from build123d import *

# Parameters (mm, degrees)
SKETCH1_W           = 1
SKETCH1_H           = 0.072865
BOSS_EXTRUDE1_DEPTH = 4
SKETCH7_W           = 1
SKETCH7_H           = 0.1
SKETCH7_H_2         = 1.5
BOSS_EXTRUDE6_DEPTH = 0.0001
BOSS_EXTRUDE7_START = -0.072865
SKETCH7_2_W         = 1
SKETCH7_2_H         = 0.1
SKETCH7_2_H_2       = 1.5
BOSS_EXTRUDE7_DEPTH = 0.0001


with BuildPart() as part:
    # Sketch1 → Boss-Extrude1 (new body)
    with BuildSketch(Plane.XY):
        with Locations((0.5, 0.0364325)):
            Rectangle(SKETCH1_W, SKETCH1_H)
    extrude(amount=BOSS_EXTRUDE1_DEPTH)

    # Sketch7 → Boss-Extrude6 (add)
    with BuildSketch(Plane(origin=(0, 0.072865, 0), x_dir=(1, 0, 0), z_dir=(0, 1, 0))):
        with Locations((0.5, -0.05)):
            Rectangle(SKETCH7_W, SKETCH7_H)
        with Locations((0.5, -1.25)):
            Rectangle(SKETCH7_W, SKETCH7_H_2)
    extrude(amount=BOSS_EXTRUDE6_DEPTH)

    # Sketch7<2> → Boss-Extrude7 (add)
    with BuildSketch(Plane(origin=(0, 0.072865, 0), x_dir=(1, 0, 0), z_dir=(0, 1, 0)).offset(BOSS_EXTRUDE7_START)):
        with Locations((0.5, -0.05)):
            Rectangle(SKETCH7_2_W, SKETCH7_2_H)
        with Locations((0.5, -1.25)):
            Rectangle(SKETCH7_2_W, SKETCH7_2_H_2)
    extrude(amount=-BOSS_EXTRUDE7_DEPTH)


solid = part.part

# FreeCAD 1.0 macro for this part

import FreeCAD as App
import Part
import Sketcher
from FreeCAD import Vector
Q = App.Units.Quantity

doc = App.newDocument("Part")
body = doc.addObject("PartDesign::Body", "Body")

# Sketch on XY plane
sketch1 = body.newObject("Sketcher::SketchObject", "Sketch")
sketch1.AttachmentSupport = (doc.getObject("XY_Plane"), [""])
sketch1.MapMode = "FlatFace"
sketch1.addGeometry(Part.LineSegment(Vector(0, 0.07, 0), Vector(0, 0, 0)), False)
sketch1.addGeometry(Part.LineSegment(Vector(0, 0, 0), Vector(1, 0, 0)), False)
sketch1.addGeometry(Part.LineSegment(Vector(1, 0, 0), Vector(1, 0.07, 0)), False)
sketch1.addGeometry(Part.LineSegment(Vector(1, 0.07, 0), Vector(0, 0.07, 0)), False)
sketch1.addConstraint(Sketcher.Constraint("Coincident", 0, 2, 1, 1))
sketch1.addConstraint(Sketcher.Constraint("Coincident", 1, 2, 2, 1))
sketch1.addConstraint(Sketcher.Constraint("Coincident", 2, 2, 3, 1))
sketch1.addConstraint(Sketcher.Constraint("Coincident", 3, 2, 0, 1))
sketch1.addConstraint(Sketcher.Constraint("Vertical", 0))
sketch1.addConstraint(Sketcher.Constraint("Horizontal", 1))
sketch1.addConstraint(Sketcher.Constraint("Vertical", 2))
sketch1.addConstraint(Sketcher.Constraint("Horizontal", 3))
sketch1.addConstraint(Sketcher.Constraint("Coincident", 0, 2, -1, 1))
sketch1.addConstraint(Sketcher.Constraint("DistanceX", 1, 1, 1, 2, Q("1 mm")))
sketch1.addConstraint(Sketcher.Constraint("DistanceY", 0, 2, 0, 1, Q("0.072865 mm")))
pad1 = body.newObject("PartDesign::Pad", "Pad")
pad1.Profile = sketch1
pad1.Length = 4

# Sketch on XZ plane
sketch2 = body.newObject("Sketcher::SketchObject", "Sketch001")
sketch2.AttachmentSupport = (doc.getObject("XZ_Plane"), [""])
sketch2.MapMode = "FlatFace"
sketch2.AttachmentOffset = App.Placement(Vector(0, 0, -0.072865), App.Rotation())
sketch2.addGeometry(Part.LineSegment(Vector(0, 0, 0), Vector(0, 0.1, 0)), False)
sketch2.addGeometry(Part.LineSegment(Vector(0, 0.1, 0), Vector(1, 0.1, 0)), False)
sketch2.addGeometry(Part.LineSegment(Vector(1, 0.1, 0), Vector(1, 0, 0)), False)
sketch2.addGeometry(Part.LineSegment(Vector(1, 0, 0), Vector(0, 0, 0)), False)
sketch2.addGeometry(Part.LineSegment(Vector(0, 0.5, 0), Vector(0, 2, 0)), False)
sketch2.addGeometry(Part.LineSegment(Vector(0, 2, 0), Vector(1, 2, 0)), False)
sketch2.addGeometry(Part.LineSegment(Vector(1, 2, 0), Vector(1, 0.5, 0)), False)
sketch2.addGeometry(Part.LineSegment(Vector(1, 0.5, 0), Vector(0, 0.5, 0)), False)
sketch2.addConstraint(Sketcher.Constraint("Coincident", 0, 2, 1, 1))
sketch2.addConstraint(Sketcher.Constraint("Coincident", 1, 2, 2, 1))
sketch2.addConstraint(Sketcher.Constraint("Coincident", 2, 2, 3, 1))
sketch2.addConstraint(Sketcher.Constraint("Coincident", 3, 2, 0, 1))
sketch2.addConstraint(Sketcher.Constraint("Coincident", 4, 2, 5, 1))
sketch2.addConstraint(Sketcher.Constraint("Coincident", 5, 2, 6, 1))
sketch2.addConstraint(Sketcher.Constraint("Coincident", 6, 2, 7, 1))
sketch2.addConstraint(Sketcher.Constraint("Coincident", 7, 2, 4, 1))
sketch2.addConstraint(Sketcher.Constraint("Vertical", 0))
sketch2.addConstraint(Sketcher.Constraint("Horizontal", 1))
sketch2.addConstraint(Sketcher.Constraint("Vertical", 2))
sketch2.addConstraint(Sketcher.Constraint("Horizontal", 3))
sketch2.addConstraint(Sketcher.Constraint("Vertical", 4))
sketch2.addConstraint(Sketcher.Constraint("Horizontal", 5))
sketch2.addConstraint(Sketcher.Constraint("Vertical", 6))
sketch2.addConstraint(Sketcher.Constraint("Horizontal", 7))
sketch2.addConstraint(Sketcher.Constraint("Coincident", 3, 2, -1, 1))
sketch2.addConstraint(Sketcher.Constraint("PointOnObject", 4, 2, -2))
sketch2.addConstraint(Sketcher.Constraint("Vertical", 2, 2, 5, 2))
sketch2.addConstraint(Sketcher.Constraint("DistanceX", 1, 1, 1, 2, Q("1 mm")))
sketch2.addConstraint(Sketcher.Constraint("DistanceY", 0, 1, 0, 2, Q("0.1 mm")))
sketch2.addConstraint(Sketcher.Constraint("DistanceY", 4, 1, 4, 2, Q("1.5 mm")))
sketch2.addConstraint(Sketcher.Constraint("DistanceY", -1, 1, 4, 2, Q("2 mm")))
pad2 = body.newObject("PartDesign::Pad", "Pad001")
pad2.Profile = sketch2
pad2.Length = 0.0001
pad2.Reversed = True

# Sketch on XZ plane
sketch3 = body.newObject("Sketcher::SketchObject", "Sketch002")
sketch3.AttachmentSupport = (doc.getObject("XZ_Plane"), [""])
sketch3.MapMode = "FlatFace"
sketch3.addGeometry(Part.LineSegment(Vector(0, 0, 0), Vector(0, 0.1, 0)), False)
sketch3.addGeometry(Part.LineSegment(Vector(0, 0.1, 0), Vector(1, 0.1, 0)), False)
sketch3.addGeometry(Part.LineSegment(Vector(1, 0.1, 0), Vector(1, 0, 0)), False)
sketch3.addGeometry(Part.LineSegment(Vector(1, 0, 0), Vector(0, 0, 0)), False)
sketch3.addGeometry(Part.LineSegment(Vector(0, 0.5, 0), Vector(0, 2, 0)), False)
sketch3.addGeometry(Part.LineSegment(Vector(0, 2, 0), Vector(1, 2, 0)), False)
sketch3.addGeometry(Part.LineSegment(Vector(1, 2, 0), Vector(1, 0.5, 0)), False)
sketch3.addGeometry(Part.LineSegment(Vector(1, 0.5, 0), Vector(0, 0.5, 0)), False)
sketch3.addConstraint(Sketcher.Constraint("Coincident", 0, 2, 1, 1))
sketch3.addConstraint(Sketcher.Constraint("Coincident", 1, 2, 2, 1))
sketch3.addConstraint(Sketcher.Constraint("Coincident", 2, 2, 3, 1))
sketch3.addConstraint(Sketcher.Constraint("Coincident", 3, 2, 0, 1))
sketch3.addConstraint(Sketcher.Constraint("Coincident", 4, 2, 5, 1))
sketch3.addConstraint(Sketcher.Constraint("Coincident", 5, 2, 6, 1))
sketch3.addConstraint(Sketcher.Constraint("Coincident", 6, 2, 7, 1))
sketch3.addConstraint(Sketcher.Constraint("Coincident", 7, 2, 4, 1))
sketch3.addConstraint(Sketcher.Constraint("Vertical", 0))
sketch3.addConstraint(Sketcher.Constraint("Horizontal", 1))
sketch3.addConstraint(Sketcher.Constraint("Vertical", 2))
sketch3.addConstraint(Sketcher.Constraint("Horizontal", 3))
sketch3.addConstraint(Sketcher.Constraint("Vertical", 4))
sketch3.addConstraint(Sketcher.Constraint("Horizontal", 5))
sketch3.addConstraint(Sketcher.Constraint("Vertical", 6))
sketch3.addConstraint(Sketcher.Constraint("Horizontal", 7))
sketch3.addConstraint(Sketcher.Constraint("Coincident", 3, 2, -1, 1))
sketch3.addConstraint(Sketcher.Constraint("PointOnObject", 4, 2, -2))
sketch3.addConstraint(Sketcher.Constraint("Vertical", 2, 2, 5, 2))
sketch3.addConstraint(Sketcher.Constraint("DistanceX", 1, 1, 1, 2, Q("1 mm")))
sketch3.addConstraint(Sketcher.Constraint("DistanceY", 0, 1, 0, 2, Q("0.1 mm")))
sketch3.addConstraint(Sketcher.Constraint("DistanceY", 4, 1, 4, 2, Q("1.5 mm")))
sketch3.addConstraint(Sketcher.Constraint("DistanceY", -1, 1, 4, 2, Q("2 mm")))
pad3 = body.newObject("PartDesign::Pad", "Pad002")
pad3.Profile = sketch3
pad3.Length = 0.0001

doc.recompute()
